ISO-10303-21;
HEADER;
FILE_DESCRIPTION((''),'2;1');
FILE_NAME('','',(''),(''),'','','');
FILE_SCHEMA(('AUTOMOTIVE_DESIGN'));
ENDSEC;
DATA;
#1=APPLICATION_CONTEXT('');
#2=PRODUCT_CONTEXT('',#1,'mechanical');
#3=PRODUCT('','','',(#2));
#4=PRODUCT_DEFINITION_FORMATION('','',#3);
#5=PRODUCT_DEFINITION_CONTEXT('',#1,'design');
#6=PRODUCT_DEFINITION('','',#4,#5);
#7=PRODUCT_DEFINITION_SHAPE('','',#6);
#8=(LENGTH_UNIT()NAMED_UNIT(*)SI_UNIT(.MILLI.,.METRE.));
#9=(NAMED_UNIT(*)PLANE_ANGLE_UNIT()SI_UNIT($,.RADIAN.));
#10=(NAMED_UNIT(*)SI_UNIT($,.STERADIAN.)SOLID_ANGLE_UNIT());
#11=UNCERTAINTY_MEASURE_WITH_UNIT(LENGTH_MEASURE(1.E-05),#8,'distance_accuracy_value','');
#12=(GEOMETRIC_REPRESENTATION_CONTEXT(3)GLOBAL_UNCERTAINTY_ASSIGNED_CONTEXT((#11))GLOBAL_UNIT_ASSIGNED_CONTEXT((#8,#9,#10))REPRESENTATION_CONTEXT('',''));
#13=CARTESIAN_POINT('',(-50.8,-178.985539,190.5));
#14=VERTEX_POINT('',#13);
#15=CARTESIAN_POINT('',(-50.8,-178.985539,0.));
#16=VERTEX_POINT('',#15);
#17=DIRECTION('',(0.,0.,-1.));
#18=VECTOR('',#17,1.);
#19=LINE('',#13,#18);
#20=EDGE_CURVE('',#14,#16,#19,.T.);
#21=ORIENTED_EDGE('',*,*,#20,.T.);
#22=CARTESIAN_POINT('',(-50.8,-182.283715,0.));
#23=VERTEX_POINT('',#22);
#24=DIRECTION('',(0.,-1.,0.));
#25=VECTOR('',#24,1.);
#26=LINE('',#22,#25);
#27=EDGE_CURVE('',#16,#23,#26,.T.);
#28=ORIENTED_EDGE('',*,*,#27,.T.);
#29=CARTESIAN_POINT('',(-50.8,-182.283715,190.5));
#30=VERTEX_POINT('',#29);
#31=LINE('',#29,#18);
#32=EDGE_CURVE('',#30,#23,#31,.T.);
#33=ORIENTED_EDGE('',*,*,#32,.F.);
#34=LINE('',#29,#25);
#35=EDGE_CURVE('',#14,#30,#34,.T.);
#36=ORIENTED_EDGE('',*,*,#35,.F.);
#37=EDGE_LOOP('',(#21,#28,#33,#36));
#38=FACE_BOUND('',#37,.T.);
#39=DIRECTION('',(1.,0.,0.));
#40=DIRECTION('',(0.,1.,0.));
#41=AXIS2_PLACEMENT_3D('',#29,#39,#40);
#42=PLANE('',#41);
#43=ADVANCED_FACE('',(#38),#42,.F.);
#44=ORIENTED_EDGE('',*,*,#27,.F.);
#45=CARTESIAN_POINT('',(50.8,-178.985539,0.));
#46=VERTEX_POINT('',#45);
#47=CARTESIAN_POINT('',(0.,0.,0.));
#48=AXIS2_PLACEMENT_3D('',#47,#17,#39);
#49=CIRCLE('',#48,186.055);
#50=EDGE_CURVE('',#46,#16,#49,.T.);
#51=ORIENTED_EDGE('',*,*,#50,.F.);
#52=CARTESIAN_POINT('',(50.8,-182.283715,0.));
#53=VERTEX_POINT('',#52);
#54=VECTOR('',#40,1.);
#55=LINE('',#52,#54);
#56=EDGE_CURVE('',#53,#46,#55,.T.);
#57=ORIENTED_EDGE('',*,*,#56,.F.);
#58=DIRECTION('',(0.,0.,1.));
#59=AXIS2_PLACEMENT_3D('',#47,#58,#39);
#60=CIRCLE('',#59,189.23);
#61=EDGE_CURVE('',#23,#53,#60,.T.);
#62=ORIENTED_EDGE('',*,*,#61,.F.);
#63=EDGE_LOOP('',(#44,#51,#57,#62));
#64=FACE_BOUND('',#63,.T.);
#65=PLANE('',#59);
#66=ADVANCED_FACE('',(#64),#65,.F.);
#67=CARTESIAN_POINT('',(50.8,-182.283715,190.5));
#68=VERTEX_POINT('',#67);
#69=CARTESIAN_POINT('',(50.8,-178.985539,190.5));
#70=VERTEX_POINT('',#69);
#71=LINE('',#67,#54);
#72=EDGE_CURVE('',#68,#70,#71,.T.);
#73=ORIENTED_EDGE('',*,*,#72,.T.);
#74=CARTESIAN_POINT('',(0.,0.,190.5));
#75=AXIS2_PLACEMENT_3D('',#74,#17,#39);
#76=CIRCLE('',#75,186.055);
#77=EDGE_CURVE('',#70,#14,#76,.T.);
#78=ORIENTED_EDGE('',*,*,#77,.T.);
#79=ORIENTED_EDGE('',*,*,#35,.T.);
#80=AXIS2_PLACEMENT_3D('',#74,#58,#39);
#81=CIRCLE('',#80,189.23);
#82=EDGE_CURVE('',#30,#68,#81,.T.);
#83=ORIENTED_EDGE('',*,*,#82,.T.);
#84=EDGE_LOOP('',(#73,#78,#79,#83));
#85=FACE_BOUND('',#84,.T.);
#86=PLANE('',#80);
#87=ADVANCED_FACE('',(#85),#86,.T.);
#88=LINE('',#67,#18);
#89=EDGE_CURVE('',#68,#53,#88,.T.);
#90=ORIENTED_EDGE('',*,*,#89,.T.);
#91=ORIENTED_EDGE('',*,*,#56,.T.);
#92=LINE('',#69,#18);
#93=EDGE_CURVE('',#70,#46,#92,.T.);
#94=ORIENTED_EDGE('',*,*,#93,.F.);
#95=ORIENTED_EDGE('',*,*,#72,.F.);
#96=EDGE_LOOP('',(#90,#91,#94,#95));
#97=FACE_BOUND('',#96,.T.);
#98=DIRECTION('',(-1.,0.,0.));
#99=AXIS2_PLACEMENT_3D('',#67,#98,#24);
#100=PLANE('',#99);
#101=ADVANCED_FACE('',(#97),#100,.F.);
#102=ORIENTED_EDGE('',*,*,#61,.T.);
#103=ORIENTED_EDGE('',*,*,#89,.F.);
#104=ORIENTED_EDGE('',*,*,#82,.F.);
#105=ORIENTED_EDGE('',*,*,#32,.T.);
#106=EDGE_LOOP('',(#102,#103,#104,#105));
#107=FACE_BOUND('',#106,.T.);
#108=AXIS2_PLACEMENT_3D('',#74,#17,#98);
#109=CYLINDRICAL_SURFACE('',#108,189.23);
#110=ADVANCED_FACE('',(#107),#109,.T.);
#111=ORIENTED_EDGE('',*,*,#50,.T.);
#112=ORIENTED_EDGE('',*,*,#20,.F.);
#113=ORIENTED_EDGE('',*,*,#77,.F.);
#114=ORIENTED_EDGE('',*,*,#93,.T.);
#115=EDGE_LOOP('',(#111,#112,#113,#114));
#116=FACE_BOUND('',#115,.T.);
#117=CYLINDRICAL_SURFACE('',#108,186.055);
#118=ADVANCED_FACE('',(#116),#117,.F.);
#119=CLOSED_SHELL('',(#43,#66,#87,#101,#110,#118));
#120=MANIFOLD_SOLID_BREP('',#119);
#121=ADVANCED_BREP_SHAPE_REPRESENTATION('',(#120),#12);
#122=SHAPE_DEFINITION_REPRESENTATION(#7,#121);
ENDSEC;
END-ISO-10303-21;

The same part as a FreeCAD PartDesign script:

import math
import FreeCAD as App
import Part
import Sketcher
Q = App.Units.Quantity

doc = App.newDocument("Part")
params = doc.addObject("Spreadsheet::Sheet", "Params")
for row, (alias, value) in enumerate([
    ("sketch1_radius", "7.45 in"),
    ("sketch1_radius2", "7.325 in"),
    ("pad1_length", "7.5 in"),
], start=1):
    params.set(f"A{row}", alias)
    params.set(f"B{row}", "=" + value)
    params.setAlias(f"B{row}", alias)

body = doc.addObject("PartDesign::Body", "Body")

sketch1 = body.newObject("Sketcher::SketchObject", "Sketch")
sketch1.AttachmentSupport = (doc.getObject("XY_Plane"), [""])
sketch1.MapMode = "FlatFace"
sketch1.addGeometry([
    Part.LineSegment(App.Vector(-50.8, -179, 0), App.Vector(-50.8, -182.3, 0)),
    Part.ArcOfCircle(Part.Circle(App.Vector(0, 0, 0), App.Vector(0, 0, 1), 189.2), math.radians(-106), math.radians(-74)),
    Part.LineSegment(App.Vector(50.8, -182.3, 0), App.Vector(50.8, -179, 0)),
    Part.ArcOfCircle(Part.Circle(App.Vector(0, 0, 0), App.Vector(0, 0, 1), 186.1), math.radians(-106), math.radians(-74)),
], False)
sketch1.addConstraint([
    Sketcher.Constraint("Coincident", 0, 2, 1, 1),
    Sketcher.Constraint("Coincident", 1, 2, 2, 1),
    Sketcher.Constraint("Coincident", 2, 2, 3, 2),
    Sketcher.Constraint("Coincident", 3, 1, 0, 1),
    Sketcher.Constraint("Vertical", 0),
    Sketcher.Constraint("Vertical", 2),
    Sketcher.Constraint("Coincident", 1, 3, -1, 1),
    Sketcher.Constraint("Coincident", 3, 3, -1, 1),
    Sketcher.Constraint("Horizontal", 0, 2, 1, 2),
    Sketcher.Constraint("Radius", 1, Q("7.45 in")),
    Sketcher.Constraint("DistanceX", 0, 2, -1, 1, Q("2 in")),
    Sketcher.Constraint("Radius", 3, Q("7.325 in")),
])
sketch1.setExpression("Constraints[9]", "Params.sketch1_radius")
sketch1.setExpression("Constraints[11]", "Params.sketch1_radius2")
pad1 = body.newObject("PartDesign::Pad", "Pad")
pad1.Profile = sketch1
pad1.setExpression("Length", "Params.pad1_length")

doc.recompute()
